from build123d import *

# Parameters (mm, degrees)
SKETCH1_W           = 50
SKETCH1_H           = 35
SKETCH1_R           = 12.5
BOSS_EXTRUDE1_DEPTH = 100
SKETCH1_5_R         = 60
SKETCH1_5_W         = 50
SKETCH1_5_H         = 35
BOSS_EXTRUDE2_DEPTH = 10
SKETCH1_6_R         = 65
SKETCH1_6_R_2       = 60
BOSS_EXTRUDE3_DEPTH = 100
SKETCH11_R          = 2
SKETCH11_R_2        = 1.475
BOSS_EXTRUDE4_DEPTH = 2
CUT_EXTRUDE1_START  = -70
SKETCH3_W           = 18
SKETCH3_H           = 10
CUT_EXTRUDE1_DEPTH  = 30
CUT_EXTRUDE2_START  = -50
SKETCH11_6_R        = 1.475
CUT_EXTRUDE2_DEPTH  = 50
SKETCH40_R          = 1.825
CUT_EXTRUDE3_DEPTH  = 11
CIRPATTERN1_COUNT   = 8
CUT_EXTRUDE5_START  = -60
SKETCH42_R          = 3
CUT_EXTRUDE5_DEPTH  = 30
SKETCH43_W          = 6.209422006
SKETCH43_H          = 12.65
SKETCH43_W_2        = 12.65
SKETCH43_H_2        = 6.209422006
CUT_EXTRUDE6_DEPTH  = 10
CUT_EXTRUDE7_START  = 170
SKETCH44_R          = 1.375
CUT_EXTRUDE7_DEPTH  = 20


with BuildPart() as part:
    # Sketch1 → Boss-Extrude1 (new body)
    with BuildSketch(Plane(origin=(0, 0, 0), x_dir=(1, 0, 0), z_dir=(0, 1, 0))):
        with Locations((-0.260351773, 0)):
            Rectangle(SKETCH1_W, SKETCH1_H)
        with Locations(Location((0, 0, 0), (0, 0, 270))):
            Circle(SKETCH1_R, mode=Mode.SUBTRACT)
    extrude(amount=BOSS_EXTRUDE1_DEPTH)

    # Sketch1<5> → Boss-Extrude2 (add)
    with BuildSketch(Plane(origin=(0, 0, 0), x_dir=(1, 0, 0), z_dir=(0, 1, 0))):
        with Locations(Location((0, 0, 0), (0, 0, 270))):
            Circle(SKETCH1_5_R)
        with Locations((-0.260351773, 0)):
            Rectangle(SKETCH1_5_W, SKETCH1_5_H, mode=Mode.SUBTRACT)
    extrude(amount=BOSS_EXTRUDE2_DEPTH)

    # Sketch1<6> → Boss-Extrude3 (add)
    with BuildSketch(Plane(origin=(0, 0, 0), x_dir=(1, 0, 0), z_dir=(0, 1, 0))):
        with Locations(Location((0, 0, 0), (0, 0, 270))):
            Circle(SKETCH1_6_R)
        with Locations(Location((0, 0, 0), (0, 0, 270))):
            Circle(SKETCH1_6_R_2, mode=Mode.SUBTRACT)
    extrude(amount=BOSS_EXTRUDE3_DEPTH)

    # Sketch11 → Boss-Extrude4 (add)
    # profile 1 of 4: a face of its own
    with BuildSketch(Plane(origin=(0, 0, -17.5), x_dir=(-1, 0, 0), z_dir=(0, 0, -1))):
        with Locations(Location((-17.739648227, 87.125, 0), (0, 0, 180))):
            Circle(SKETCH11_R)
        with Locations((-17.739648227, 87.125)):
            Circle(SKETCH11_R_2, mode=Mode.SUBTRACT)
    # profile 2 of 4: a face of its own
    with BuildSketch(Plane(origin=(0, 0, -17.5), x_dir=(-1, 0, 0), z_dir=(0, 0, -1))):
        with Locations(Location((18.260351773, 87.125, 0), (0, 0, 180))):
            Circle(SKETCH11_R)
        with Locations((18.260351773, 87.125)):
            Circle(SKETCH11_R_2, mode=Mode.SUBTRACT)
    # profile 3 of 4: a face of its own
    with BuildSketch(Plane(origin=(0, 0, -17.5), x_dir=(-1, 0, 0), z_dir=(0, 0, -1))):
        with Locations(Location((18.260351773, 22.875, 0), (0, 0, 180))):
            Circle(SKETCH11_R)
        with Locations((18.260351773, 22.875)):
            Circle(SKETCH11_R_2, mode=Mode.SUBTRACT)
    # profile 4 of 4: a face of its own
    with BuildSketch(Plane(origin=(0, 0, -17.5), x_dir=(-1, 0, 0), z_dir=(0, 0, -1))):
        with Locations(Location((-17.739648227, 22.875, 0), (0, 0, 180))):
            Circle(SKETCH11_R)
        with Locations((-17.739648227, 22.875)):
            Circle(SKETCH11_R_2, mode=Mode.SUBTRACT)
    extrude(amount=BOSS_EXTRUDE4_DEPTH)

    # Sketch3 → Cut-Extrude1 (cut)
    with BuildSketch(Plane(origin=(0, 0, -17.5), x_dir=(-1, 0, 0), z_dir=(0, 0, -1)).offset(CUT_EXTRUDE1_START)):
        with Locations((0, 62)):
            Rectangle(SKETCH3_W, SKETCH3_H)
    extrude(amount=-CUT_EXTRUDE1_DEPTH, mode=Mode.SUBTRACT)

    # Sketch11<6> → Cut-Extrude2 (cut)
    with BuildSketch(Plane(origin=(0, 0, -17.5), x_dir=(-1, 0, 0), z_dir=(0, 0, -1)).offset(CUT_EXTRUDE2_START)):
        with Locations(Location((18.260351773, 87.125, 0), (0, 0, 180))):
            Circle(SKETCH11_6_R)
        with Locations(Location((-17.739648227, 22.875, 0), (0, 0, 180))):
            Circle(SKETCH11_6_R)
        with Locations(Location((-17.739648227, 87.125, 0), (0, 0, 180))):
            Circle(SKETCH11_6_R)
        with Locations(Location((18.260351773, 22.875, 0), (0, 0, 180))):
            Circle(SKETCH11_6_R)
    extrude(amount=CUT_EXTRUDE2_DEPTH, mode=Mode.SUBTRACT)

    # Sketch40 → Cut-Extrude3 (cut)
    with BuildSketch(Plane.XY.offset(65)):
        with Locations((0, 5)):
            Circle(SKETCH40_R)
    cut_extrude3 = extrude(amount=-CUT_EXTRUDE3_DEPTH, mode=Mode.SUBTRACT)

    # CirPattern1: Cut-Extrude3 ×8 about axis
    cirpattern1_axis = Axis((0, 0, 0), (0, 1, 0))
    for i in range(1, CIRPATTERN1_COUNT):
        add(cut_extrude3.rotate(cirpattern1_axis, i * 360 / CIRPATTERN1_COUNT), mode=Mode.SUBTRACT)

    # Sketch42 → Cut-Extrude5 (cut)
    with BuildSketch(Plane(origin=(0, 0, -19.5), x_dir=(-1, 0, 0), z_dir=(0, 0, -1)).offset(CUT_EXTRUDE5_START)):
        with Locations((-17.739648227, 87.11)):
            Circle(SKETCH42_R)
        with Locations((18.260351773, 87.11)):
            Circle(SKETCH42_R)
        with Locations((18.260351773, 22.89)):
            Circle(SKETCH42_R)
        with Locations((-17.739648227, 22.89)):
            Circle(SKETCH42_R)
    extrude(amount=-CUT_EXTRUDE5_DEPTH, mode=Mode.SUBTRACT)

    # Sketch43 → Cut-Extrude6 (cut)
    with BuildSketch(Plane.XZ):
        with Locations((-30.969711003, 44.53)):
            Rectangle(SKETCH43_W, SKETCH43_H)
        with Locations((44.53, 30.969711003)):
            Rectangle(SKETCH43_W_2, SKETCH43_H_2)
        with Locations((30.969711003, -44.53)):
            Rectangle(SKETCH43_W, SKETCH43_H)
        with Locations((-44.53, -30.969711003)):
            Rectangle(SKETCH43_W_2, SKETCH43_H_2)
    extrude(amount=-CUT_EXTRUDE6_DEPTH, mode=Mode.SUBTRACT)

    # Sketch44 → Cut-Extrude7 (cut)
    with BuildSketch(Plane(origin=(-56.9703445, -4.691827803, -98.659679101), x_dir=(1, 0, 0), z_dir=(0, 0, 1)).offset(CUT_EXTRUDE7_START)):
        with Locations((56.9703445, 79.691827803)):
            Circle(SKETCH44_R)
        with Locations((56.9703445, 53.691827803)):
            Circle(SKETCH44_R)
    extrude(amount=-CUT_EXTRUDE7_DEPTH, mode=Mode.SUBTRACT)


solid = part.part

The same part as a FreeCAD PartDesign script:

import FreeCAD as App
import Part
import Sketcher
from FreeCAD import Vector

doc = App.newDocument("Part")
body = doc.addObject("PartDesign::Body", "Body")

# Sketch on XZ plane
sketch1 = doc.addObject("Sketcher::SketchObject", "Sketch")
body.addObject(sketch1)
sketch1.AttachmentSupport = (doc.XZ_Plane, [""])
sketch1.MapMode = "FlatFace"
sketch1.addGeometry(Part.LineSegment(Vector(-25, -18, 0), Vector(-25, 18, 0)), False)
sketch1.addGeometry(Part.LineSegment(Vector(-25, 18, 0), Vector(25, 18, 0)), False)
sketch1.addGeometry(Part.LineSegment(Vector(25, 18, 0), Vector(25, -18, 0)), False)
sketch1.addGeometry(Part.LineSegment(Vector(25, -18, 0), Vector(-25, -18, 0)), False)
sketch1.addGeometry(Part.Circle(Vector(0, 0, 0), Vector(0, 0, 1), 12), False)
sketch1.addConstraint(Sketcher.Constraint("Coincident", 0, 2, 1, 1))
sketch1.addConstraint(Sketcher.Constraint("Coincident", 1, 2, 2, 1))
sketch1.addConstraint(Sketcher.Constraint("Coincident", 2, 2, 3, 1))
sketch1.addConstraint(Sketcher.Constraint("Coincident", 3, 2, 0, 1))
sketch1.addConstraint(Sketcher.Constraint("Vertical", 0))
sketch1.addConstraint(Sketcher.Constraint("Horizontal", 1))
sketch1.addConstraint(Sketcher.Constraint("Vertical", 2))
sketch1.addConstraint(Sketcher.Constraint("Horizontal", 3))
sketch1.addConstraint(Sketcher.Constraint("Coincident", 4, 3, -1, 1))
sketch1.addConstraint(Sketcher.Constraint("Diameter", 4, 25.0))
sketch1.addConstraint(Sketcher.Constraint("DistanceX", 1, 1, 1, 2, 50.0))
sketch1.addConstraint(Sketcher.Constraint("DistanceY", 0, 1, 0, 2, 35.0))
sketch1.addConstraint(Sketcher.Constraint("DistanceY", -1, 1, 0, 2, 17.5))
sketch1.addConstraint(Sketcher.Constraint("DistanceX", 0, 2, -1, 1, 25.260352))
pad1 = doc.addObject("PartDesign::Pad", "Pad")
body.addObject(pad1)
pad1.Profile = sketch1
pad1.Length = 100
pad1.Reversed = True

# Sketch on XZ plane
sketch2 = doc.addObject("Sketcher::SketchObject", "Sketch001")
body.addObject(sketch2)
sketch2.AttachmentSupport = (doc.XZ_Plane, [""])
sketch2.MapMode = "FlatFace"
sketch2.addGeometry(Part.Circle(Vector(0, 0, 0), Vector(0, 0, 1), 60), False)
sketch2.addGeometry(Part.LineSegment(Vector(25, 18, 0), Vector(-25, 18, 0)), False)
sketch2.addGeometry(Part.LineSegment(Vector(-25, 18, 0), Vector(-25, -18, 0)), False)
sketch2.addGeometry(Part.LineSegment(Vector(-25, -18, 0), Vector(25, -18, 0)), False)
sketch2.addGeometry(Part.LineSegment(Vector(25, -18, 0), Vector(25, 18, 0)), False)
sketch2.addConstraint(Sketcher.Constraint("Coincident", 1, 2, 2, 1))
sketch2.addConstraint(Sketcher.Constraint("Coincident", 2, 2, 3, 1))
sketch2.addConstraint(Sketcher.Constraint("Coincident", 3, 2, 4, 1))
sketch2.addConstraint(Sketcher.Constraint("Coincident", 4, 2, 1, 1))
sketch2.addConstraint(Sketcher.Constraint("Horizontal", 1))
sketch2.addConstraint(Sketcher.Constraint("Vertical", 2))
sketch2.addConstraint(Sketcher.Constraint("Horizontal", 3))
sketch2.addConstraint(Sketcher.Constraint("Vertical", 4))
sketch2.addConstraint(Sketcher.Constraint("Coincident", 0, 3, -1, 1))
sketch2.addConstraint(Sketcher.Constraint("Diameter", 0, 120.0))
sketch2.addConstraint(Sketcher.Constraint("DistanceX", 1, 2, 1, 1, 50.0))
sketch2.addConstraint(Sketcher.Constraint("DistanceY", 2, 2, 2, 1, 35.0))
sketch2.addConstraint(Sketcher.Constraint("DistanceY", -1, 1, 1, 2, 17.5))
sketch2.addConstraint(Sketcher.Constraint("DistanceX", 1, 2, -1, 1, 25.260352))
pad2 = doc.addObject("PartDesign::Pad", "Pad001")
body.addObject(pad2)
pad2.Profile = sketch2
pad2.Length = 10
pad2.Reversed = True

# Sketch on XZ plane
sketch3 = doc.addObject("Sketcher::SketchObject", "Sketch002")
body.addObject(sketch3)
sketch3.AttachmentSupport = (doc.XZ_Plane, [""])
sketch3.MapMode = "FlatFace"
sketch3.addGeometry(Part.Circle(Vector(0, 0, 0), Vector(0, 0, 1), 65), False)
sketch3.addGeometry(Part.Circle(Vector(0, 0, 0), Vector(0, 0, 1), 60), False)
sketch3.addConstraint(Sketcher.Constraint("Coincident", 0, 3, -1, 1))
sketch3.addConstraint(Sketcher.Constraint("Coincident", 1, 3, -1, 1))
sketch3.addConstraint(Sketcher.Constraint("Diameter", 0, 130.0))
sketch3.addConstraint(Sketcher.Constraint("Diameter", 1, 120.0))
pad3 = doc.addObject("PartDesign::Pad", "Pad002")
body.addObject(pad3)
pad3.Profile = sketch3
pad3.Length = 100
pad3.Reversed = True

# Sketch on XY plane
sketch4 = doc.addObject("Sketcher::SketchObject", "Sketch003")
body.addObject(sketch4)
sketch4.AttachmentSupport = (doc.XY_Plane, [""])
sketch4.MapMode = "FlatFace"
sketch4.AttachmentOffset = App.Placement(Vector(0, 0, -17.5), App.Rotation())
sketch4.addGeometry(Part.Circle(Vector(17.7, 87.1, 0), Vector(0, 0, 1), 2), False)
sketch4.addGeometry(Part.Circle(Vector(17.7, 87.1, 0), Vector(0, 0, 1), 1.5), False)
sketch4.addGeometry(Part.Circle(Vector(-18.3, 87.1, 0), Vector(0, 0, 1), 2), False)
sketch4.addGeometry(Part.Circle(Vector(-18.3, 87.1, 0), Vector(0, 0, 1), 1.5), False)
sketch4.addGeometry(Part.Circle(Vector(-18.3, 22.9, 0), Vector(0, 0, 1), 2), False)
sketch4.addGeometry(Part.Circle(Vector(-18.3, 22.9, 0), Vector(0, 0, 1), 1.5), False)
sketch4.addGeometry(Part.Circle(Vector(17.7, 22.9, 0), Vector(0, 0, 1), 2), False)
sketch4.addGeometry(Part.Circle(Vector(17.7, 22.9, 0), Vector(0, 0, 1), 1.5), False)
sketch4.addConstraint(Sketcher.Constraint("Coincident", 1, 3, 0, 3))
sketch4.addConstraint(Sketcher.Constraint("Coincident", 3, 3, 2, 3))
sketch4.addConstraint(Sketcher.Constraint("Coincident", 5, 3, 4, 3))
sketch4.addConstraint(Sketcher.Constraint("Coincident", 7, 3, 6, 3))
sketch4.addConstraint(Sketcher.Constraint("Equal", 0, 2))
sketch4.addConstraint(Sketcher.Constraint("Equal", 1, 3))
sketch4.addConstraint(Sketcher.Constraint("Equal", 2, 4))
sketch4.addConstraint(Sketcher.Constraint("Equal", 3, 5))
sketch4.addConstraint(Sketcher.Constraint("Equal", 4, 6))
sketch4.addConstraint(Sketcher.Constraint("Equal", 5, 7))
sketch4.addConstraint(Sketcher.Constraint("Horizontal", 1, 3, 2, 3))
sketch4.addConstraint(Sketcher.Constraint("Horizontal", 5, 3, 6, 3))
sketch4.addConstraint(Sketcher.Constraint("Vertical", 3, 3, 4, 3))
sketch4.addConstraint(Sketcher.Constraint("Vertical", 1, 3, 6, 3))
sketch4.addConstraint(Sketcher.Constraint("Diameter", 0, 4.0))
sketch4.addConstraint(Sketcher.Constraint("Diameter", 1, 2.95))
sketch4.addConstraint(Sketcher.Constraint("DistanceX", 2, 3, 0, 3, 36.0))
sketch4.addConstraint(Sketcher.Constraint("DistanceY", 4, 3, 2, 3, 64.25))
sketch4.addConstraint(Sketcher.Constraint("DistanceY", -1, 1, 0, 3, 87.125))
sketch4.addConstraint(Sketcher.Constraint("DistanceX", -1, 1, 0, 3, 17.739648))
pad4 = doc.addObject("PartDesign::Pad", "Pad003")
body.addObject(pad4)
pad4.Profile = sketch4
pad4.Length = 2
pad4.Reversed = True

# Sketch on XY plane
sketch5 = doc.addObject("Sketcher::SketchObject", "Sketch004")
body.addObject(sketch5)
sketch5.AttachmentSupport = (doc.XY_Plane, [""])
sketch5.MapMode = "FlatFace"
sketch5.AttachmentOffset = App.Placement(Vector(0, 0, 52.5), App.Rotation())
sketch5.addGeometry(Part.LineSegment(Vector(9, 67, 0), Vector(9, 57, 0)), False)
sketch5.addGeometry(Part.LineSegment(Vector(9, 57, 0), Vector(-9, 57, 0)), False)
sketch5.addGeometry(Part.LineSegment(Vector(-9, 57, 0), Vector(-9, 67, 0)), False)
sketch5.addGeometry(Part.LineSegment(Vector(-9, 67, 0), Vector(9, 67, 0)), False)
sketch5.addConstraint(Sketcher.Constraint("Coincident", 0, 2, 1, 1))
sketch5.addConstraint(Sketcher.Constraint("Coincident", 1, 2, 2, 1))
sketch5.addConstraint(Sketcher.Constraint("Coincident", 2, 2, 3, 1))
sketch5.addConstraint(Sketcher.Constraint("Coincident", 3, 2, 0, 1))
sketch5.addConstraint(Sketcher.Constraint("Vertical", 0))
sketch5.addConstraint(Sketcher.Constraint("Horizontal", 1))
sketch5.addConstraint(Sketcher.Constraint("Vertical", 2))
sketch5.addConstraint(Sketcher.Constraint("Horizontal", 3))
sketch5.addConstraint(Sketcher.Constraint("DistanceX", 1, 2, 1, 1, 18.0))
sketch5.addConstraint(Sketcher.Constraint("DistanceY", 0, 2, 0, 1, 10.0))
sketch5.addConstraint(Sketcher.Constraint("DistanceX", -1, 1, 0, 2, 9.0))
sketch5.addConstraint(Sketcher.Constraint("DistanceY", -1, 1, 0, 2, 57.0))
pocket1 = doc.addObject("PartDesign::Pocket", "Pocket")
body.addObject(pocket1)
pocket1.Profile = sketch5
pocket1.Length = 30
pocket1.Reversed = True

# Sketch on XY plane
sketch6 = doc.addObject("Sketcher::SketchObject", "Sketch005")
body.addObject(sketch6)
sketch6.AttachmentSupport = (doc.XY_Plane, [""])
sketch6.MapMode = "FlatFace"
sketch6.AttachmentOffset = App.Placement(Vector(0, 0, 32.5), App.Rotation())
sketch6.addGeometry(Part.Circle(Vector(-18.3, 87.1, 0), Vector(0, 0, 1), 1.5), False)
sketch6.addGeometry(Part.Circle(Vector(17.7, 22.9, 0), Vector(0, 0, 1), 1.5), False)
sketch6.addGeometry(Part.Circle(Vector(17.7, 87.1, 0), Vector(0, 0, 1), 1.5), False)
sketch6.addGeometry(Part.Circle(Vector(-18.3, 22.9, 0), Vector(0, 0, 1), 1.5), False)
sketch6.addConstraint(Sketcher.Constraint("Equal", 0, 1))
sketch6.addConstraint(Sketcher.Constraint("Equal", 1, 2))
sketch6.addConstraint(Sketcher.Constraint("Equal", 2, 3))
sketch6.addConstraint(Sketcher.Constraint("Horizontal", 0, 3, 2, 3))
sketch6.addConstraint(Sketcher.Constraint("Horizontal", 1, 3, 3, 3))
sketch6.addConstraint(Sketcher.Constraint("Vertical", 1, 3, 2, 3))
sketch6.addConstraint(Sketcher.Constraint("Vertical", 0, 3, 3, 3))
sketch6.addConstraint(Sketcher.Constraint("Diameter", 0, 2.95))
sketch6.addConstraint(Sketcher.Constraint("DistanceX", 0, 3, 1, 3, 36.0))
sketch6.addConstraint(Sketcher.Constraint("DistanceY", 1, 3, 0, 3, 64.25))
sketch6.addConstraint(Sketcher.Constraint("DistanceY", -1, 1, 0, 3, 87.125))
sketch6.addConstraint(Sketcher.Constraint("DistanceX", 0, 3, -1, 1, 18.260352))
pocket2 = doc.addObject("PartDesign::Pocket", "Pocket001")
body.addObject(pocket2)
pocket2.Profile = sketch6
pocket2.Length = 50

# Sketch on XY plane
sketch7 = doc.addObject("Sketcher::SketchObject", "Sketch006")
body.addObject(sketch7)
sketch7.AttachmentSupport = (doc.XY_Plane, [""])
sketch7.MapMode = "FlatFace"
sketch7.AttachmentOffset = App.Placement(Vector(0, 0, 65), App.Rotation())
sketch7.addGeometry(Part.Circle(Vector(0, 5, 0), Vector(0, 0, 1), 1.8), False)
sketch7.addConstraint(Sketcher.Constraint("PointOnObject", 0, 3, -2))
sketch7.addConstraint(Sketcher.Constraint("Diameter", 0, 3.65))
sketch7.addConstraint(Sketcher.Constraint("DistanceY", -1, 1, 0, 3, 5.0))
pocket3 = doc.addObject("PartDesign::Pocket", "Pocket002")
body.addObject(pocket3)
pocket3.Profile = sketch7
pocket3.Length = 11
doc.recompute()

polarpattern = doc.addObject("PartDesign::PolarPattern", "PolarPattern")
body.addObject(polarpattern)
polarpattern.Originals = [pocket3]
polarpattern.Axis = (doc.Y_Axis, [""])
polarpattern.Angle = 360
polarpattern.Occurrences = 8
body.Tip = polarpattern

# Sketch on XY plane
sketch8 = doc.addObject("Sketcher::SketchObject", "Sketch007")
body.addObject(sketch8)
sketch8.AttachmentSupport = (doc.XY_Plane, [""])
sketch8.MapMode = "FlatFace"
sketch8.AttachmentOffset = App.Placement(Vector(0, 0, 40.5), App.Rotation())
sketch8.addGeometry(Part.Circle(Vector(17.7, 87.1, 0), Vector(0, 0, 1), 3), False)
sketch8.addGeometry(Part.Circle(Vector(-18.3, 87.1, 0), Vector(0, 0, 1), 3), False)
sketch8.addGeometry(Part.Circle(Vector(-18.3, 22.9, 0), Vector(0, 0, 1), 3), False)
sketch8.addGeometry(Part.Circle(Vector(17.7, 22.9, 0), Vector(0, 0, 1), 3), False)
sketch8.addConstraint(Sketcher.Constraint("Equal", 0, 1))
sketch8.addConstraint(Sketcher.Constraint("Equal", 1, 2))
sketch8.addConstraint(Sketcher.Constraint("Equal", 2, 3))
sketch8.addConstraint(Sketcher.Constraint("Horizontal", 0, 3, 1, 3))
sketch8.addConstraint(Sketcher.Constraint("Horizontal", 2, 3, 3, 3))
sketch8.addConstraint(Sketcher.Constraint("Vertical", 1, 3, 2, 3))
sketch8.addConstraint(Sketcher.Constraint("Vertical", 0, 3, 3, 3))
sketch8.addConstraint(Sketcher.Constraint("Diameter", 0, 6.0))
sketch8.addConstraint(Sketcher.Constraint("DistanceX", 1, 3, 0, 3, 36.0))
sketch8.addConstraint(Sketcher.Constraint("DistanceY", -1, 1, 0, 3, 87.11))
sketch8.addConstraint(Sketcher.Constraint("DistanceY", -1, 1, 2, 3, 22.89))
sketch8.addConstraint(Sketcher.Constraint("DistanceX", -1, 1, 0, 3, 17.739648))
pocket4 = doc.addObject("PartDesign::Pocket", "Pocket003")
body.addObject(pocket4)
pocket4.Profile = sketch8
pocket4.Length = 30
pocket4.Reversed = True

# Sketch on XZ plane
sketch9 = doc.addObject("Sketcher::SketchObject", "Sketch008")
body.addObject(sketch9)
sketch9.AttachmentSupport = (doc.XZ_Plane, [""])
sketch9.MapMode = "FlatFace"
sketch9.addGeometry(Part.LineSegment(Vector(-34, 51, 0), Vector(-34, 38, 0)), False)
sketch9.addGeometry(Part.LineSegment(Vector(-34, 38, 0), Vector(-28, 38, 0)), False)
sketch9.addGeometry(Part.LineSegment(Vector(-28, 38, 0), Vector(-28, 51, 0)), False)
sketch9.addGeometry(Part.LineSegment(Vector(-28, 51, 0), Vector(-34, 51, 0)), False)
sketch9.addGeometry(Part.LineSegment(Vector(38, 34, 0), Vector(38, 28, 0)), False)
sketch9.addGeometry(Part.LineSegment(Vector(38, 28, 0), Vector(51, 28, 0)), False)
sketch9.addGeometry(Part.LineSegment(Vector(51, 28, 0), Vector(51, 34, 0)), False)
sketch9.addGeometry(Part.LineSegment(Vector(51, 34, 0), Vector(38, 34, 0)), False)
sketch9.addGeometry(Part.LineSegment(Vector(28, -38, 0), Vector(28, -51, 0)), False)
sketch9.addGeometry(Part.LineSegment(Vector(28, -51, 0), Vector(34, -51, 0)), False)
sketch9.addGeometry(Part.LineSegment(Vector(34, -51, 0), Vector(34, -38, 0)), False)
sketch9.addGeometry(Part.LineSegment(Vector(34, -38, 0), Vector(28, -38, 0)), False)
sketch9.addGeometry(Part.LineSegment(Vector(-51, -28, 0), Vector(-51, -34, 0)), False)
sketch9.addGeometry(Part.LineSegment(Vector(-51, -34, 0), Vector(-38, -34, 0)), False)
sketch9.addGeometry(Part.LineSegment(Vector(-38, -34, 0), Vector(-38, -28, 0)), False)
sketch9.addGeometry(Part.LineSegment(Vector(-38, -28, 0), Vector(-51, -28, 0)), False)
sketch9.addConstraint(Sketcher.Constraint("Coincident", 0, 2, 1, 1))
sketch9.addConstraint(Sketcher.Constraint("Coincident", 1, 2, 2, 1))
sketch9.addConstraint(Sketcher.Constraint("Coincident", 2, 2, 3, 1))
sketch9.addConstraint(Sketcher.Constraint("Coincident", 3, 2, 0, 1))
sketch9.addConstraint(Sketcher.Constraint("Coincident", 4, 2, 5, 1))
sketch9.addConstraint(Sketcher.Constraint("Coincident", 5, 2, 6, 1))
sketch9.addConstraint(Sketcher.Constraint("Coincident", 6, 2, 7, 1))
sketch9.addConstraint(Sketcher.Constraint("Coincident", 7, 2, 4, 1))
sketch9.addConstraint(Sketcher.Constraint("Coincident", 8, 2, 9, 1))
sketch9.addConstraint(Sketcher.Constraint("Coincident", 9, 2, 10, 1))
sketch9.addConstraint(Sketcher.Constraint("Coincident", 10, 2, 11, 1))
sketch9.addConstraint(Sketcher.Constraint("Coincident", 11, 2, 8, 1))
sketch9.addConstraint(Sketcher.Constraint("Coincident", 12, 2, 13, 1))
sketch9.addConstraint(Sketcher.Constraint("Coincident", 13, 2, 14, 1))
sketch9.addConstraint(Sketcher.Constraint("Coincident", 14, 2, 15, 1))
sketch9.addConstraint(Sketcher.Constraint("Coincident", 15, 2, 12, 1))
sketch9.addConstraint(Sketcher.Constraint("Vertical", 0))
sketch9.addConstraint(Sketcher.Constraint("Horizontal", 1))
sketch9.addConstraint(Sketcher.Constraint("Vertical", 2))
sketch9.addConstraint(Sketcher.Constraint("Horizontal", 3))
sketch9.addConstraint(Sketcher.Constraint("Vertical", 4))
sketch9.addConstraint(Sketcher.Constraint("Horizontal", 5))
sketch9.addConstraint(Sketcher.Constraint("Vertical", 6))
sketch9.addConstraint(Sketcher.Constraint("Horizontal", 7))
sketch9.addConstraint(Sketcher.Constraint("Vertical", 8))
sketch9.addConstraint(Sketcher.Constraint("Horizontal", 9))
sketch9.addConstraint(Sketcher.Constraint("Vertical", 10))
sketch9.addConstraint(Sketcher.Constraint("Horizontal", 11))
sketch9.addConstraint(Sketcher.Constraint("Vertical", 12))
sketch9.addConstraint(Sketcher.Constraint("Horizontal", 13))
sketch9.addConstraint(Sketcher.Constraint("Vertical", 14))
sketch9.addConstraint(Sketcher.Constraint("Horizontal", 15))
sketch9.addConstraint(Sketcher.Constraint("Symmetric", 2, 2, 8, 2, -1, 1))
sketch9.addConstraint(Sketcher.Constraint("Symmetric", 0, 2, 10, 2, -1, 1))
sketch9.addConstraint(Sketcher.Constraint("Symmetric", 6, 2, 12, 2, -1, 1))
sketch9.addConstraint(Sketcher.Constraint("Symmetric", 4, 2, 14, 2, -1, 1))
sketch9.addConstraint(Sketcher.Constraint("Equal", 15, 0))
sketch9.addConstraint(Sketcher.Constraint("Equal", 11, 4))
sketch9.addConstraint(Sketcher.Constraint("DistanceX", 5, 1, 5, 2, 12.65))
sketch9.addConstraint(Sketcher.Constraint("DistanceX", 1, 2, 4, 2, 66.07))
sketch9.addConstraint(Sketcher.Constraint("DistanceY", 4, 2, 1, 2, 10.34))
sketch9.addConstraint(Sketcher.Constraint("DistanceX", 8, 2, 4, 2, 10.34))
sketch9.addConstraint(Sketcher.Constraint("DistanceY", 8, 2, 4, 2, 78.72))
sketch9.addConstraint(Sketcher.Constraint("DistanceX", 1, 1, 1, 2, 6.209422))
pocket5 = doc.addObject("PartDesign::Pocket", "Pocket004")
body.addObject(pocket5)
pocket5.Profile = sketch9
pocket5.Length = 10

# Sketch on XY plane
sketch10 = doc.addObject("Sketcher::SketchObject", "Sketch009")
body.addObject(sketch10)
sketch10.AttachmentSupport = (doc.XY_Plane, [""])
sketch10.MapMode = "FlatFace"
sketch10.AttachmentOffset = App.Placement(Vector(0, 0, 71.340321), App.Rotation())
sketch10.addGeometry(Part.Circle(Vector(0, 75, 0), Vector(0, 0, 1), 1.4), False)
sketch10.addGeometry(Part.Circle(Vector(0, 49, 0), Vector(0, 0, 1), 1.4), False)
sketch10.addConstraint(Sketcher.Constraint("Equal", 0, 1))
sketch10.addConstraint(Sketcher.Constraint("PointOnObject", 0, 3, -2))
sketch10.addConstraint(Sketcher.Constraint("PointOnObject", 1, 3, -2))
sketch10.addConstraint(Sketcher.Constraint("Diameter", 0, 2.75))
sketch10.addConstraint(Sketcher.Constraint("DistanceY", -1, 1, 0, 3, 75.0))
sketch10.addConstraint(Sketcher.Constraint("DistanceY", -1, 1, 1, 3, 49.0))
pocket6 = doc.addObject("PartDesign::Pocket", "Pocket005")
body.addObject(pocket6)
pocket6.Profile = sketch10
pocket6.Length = 20

doc.recompute()
